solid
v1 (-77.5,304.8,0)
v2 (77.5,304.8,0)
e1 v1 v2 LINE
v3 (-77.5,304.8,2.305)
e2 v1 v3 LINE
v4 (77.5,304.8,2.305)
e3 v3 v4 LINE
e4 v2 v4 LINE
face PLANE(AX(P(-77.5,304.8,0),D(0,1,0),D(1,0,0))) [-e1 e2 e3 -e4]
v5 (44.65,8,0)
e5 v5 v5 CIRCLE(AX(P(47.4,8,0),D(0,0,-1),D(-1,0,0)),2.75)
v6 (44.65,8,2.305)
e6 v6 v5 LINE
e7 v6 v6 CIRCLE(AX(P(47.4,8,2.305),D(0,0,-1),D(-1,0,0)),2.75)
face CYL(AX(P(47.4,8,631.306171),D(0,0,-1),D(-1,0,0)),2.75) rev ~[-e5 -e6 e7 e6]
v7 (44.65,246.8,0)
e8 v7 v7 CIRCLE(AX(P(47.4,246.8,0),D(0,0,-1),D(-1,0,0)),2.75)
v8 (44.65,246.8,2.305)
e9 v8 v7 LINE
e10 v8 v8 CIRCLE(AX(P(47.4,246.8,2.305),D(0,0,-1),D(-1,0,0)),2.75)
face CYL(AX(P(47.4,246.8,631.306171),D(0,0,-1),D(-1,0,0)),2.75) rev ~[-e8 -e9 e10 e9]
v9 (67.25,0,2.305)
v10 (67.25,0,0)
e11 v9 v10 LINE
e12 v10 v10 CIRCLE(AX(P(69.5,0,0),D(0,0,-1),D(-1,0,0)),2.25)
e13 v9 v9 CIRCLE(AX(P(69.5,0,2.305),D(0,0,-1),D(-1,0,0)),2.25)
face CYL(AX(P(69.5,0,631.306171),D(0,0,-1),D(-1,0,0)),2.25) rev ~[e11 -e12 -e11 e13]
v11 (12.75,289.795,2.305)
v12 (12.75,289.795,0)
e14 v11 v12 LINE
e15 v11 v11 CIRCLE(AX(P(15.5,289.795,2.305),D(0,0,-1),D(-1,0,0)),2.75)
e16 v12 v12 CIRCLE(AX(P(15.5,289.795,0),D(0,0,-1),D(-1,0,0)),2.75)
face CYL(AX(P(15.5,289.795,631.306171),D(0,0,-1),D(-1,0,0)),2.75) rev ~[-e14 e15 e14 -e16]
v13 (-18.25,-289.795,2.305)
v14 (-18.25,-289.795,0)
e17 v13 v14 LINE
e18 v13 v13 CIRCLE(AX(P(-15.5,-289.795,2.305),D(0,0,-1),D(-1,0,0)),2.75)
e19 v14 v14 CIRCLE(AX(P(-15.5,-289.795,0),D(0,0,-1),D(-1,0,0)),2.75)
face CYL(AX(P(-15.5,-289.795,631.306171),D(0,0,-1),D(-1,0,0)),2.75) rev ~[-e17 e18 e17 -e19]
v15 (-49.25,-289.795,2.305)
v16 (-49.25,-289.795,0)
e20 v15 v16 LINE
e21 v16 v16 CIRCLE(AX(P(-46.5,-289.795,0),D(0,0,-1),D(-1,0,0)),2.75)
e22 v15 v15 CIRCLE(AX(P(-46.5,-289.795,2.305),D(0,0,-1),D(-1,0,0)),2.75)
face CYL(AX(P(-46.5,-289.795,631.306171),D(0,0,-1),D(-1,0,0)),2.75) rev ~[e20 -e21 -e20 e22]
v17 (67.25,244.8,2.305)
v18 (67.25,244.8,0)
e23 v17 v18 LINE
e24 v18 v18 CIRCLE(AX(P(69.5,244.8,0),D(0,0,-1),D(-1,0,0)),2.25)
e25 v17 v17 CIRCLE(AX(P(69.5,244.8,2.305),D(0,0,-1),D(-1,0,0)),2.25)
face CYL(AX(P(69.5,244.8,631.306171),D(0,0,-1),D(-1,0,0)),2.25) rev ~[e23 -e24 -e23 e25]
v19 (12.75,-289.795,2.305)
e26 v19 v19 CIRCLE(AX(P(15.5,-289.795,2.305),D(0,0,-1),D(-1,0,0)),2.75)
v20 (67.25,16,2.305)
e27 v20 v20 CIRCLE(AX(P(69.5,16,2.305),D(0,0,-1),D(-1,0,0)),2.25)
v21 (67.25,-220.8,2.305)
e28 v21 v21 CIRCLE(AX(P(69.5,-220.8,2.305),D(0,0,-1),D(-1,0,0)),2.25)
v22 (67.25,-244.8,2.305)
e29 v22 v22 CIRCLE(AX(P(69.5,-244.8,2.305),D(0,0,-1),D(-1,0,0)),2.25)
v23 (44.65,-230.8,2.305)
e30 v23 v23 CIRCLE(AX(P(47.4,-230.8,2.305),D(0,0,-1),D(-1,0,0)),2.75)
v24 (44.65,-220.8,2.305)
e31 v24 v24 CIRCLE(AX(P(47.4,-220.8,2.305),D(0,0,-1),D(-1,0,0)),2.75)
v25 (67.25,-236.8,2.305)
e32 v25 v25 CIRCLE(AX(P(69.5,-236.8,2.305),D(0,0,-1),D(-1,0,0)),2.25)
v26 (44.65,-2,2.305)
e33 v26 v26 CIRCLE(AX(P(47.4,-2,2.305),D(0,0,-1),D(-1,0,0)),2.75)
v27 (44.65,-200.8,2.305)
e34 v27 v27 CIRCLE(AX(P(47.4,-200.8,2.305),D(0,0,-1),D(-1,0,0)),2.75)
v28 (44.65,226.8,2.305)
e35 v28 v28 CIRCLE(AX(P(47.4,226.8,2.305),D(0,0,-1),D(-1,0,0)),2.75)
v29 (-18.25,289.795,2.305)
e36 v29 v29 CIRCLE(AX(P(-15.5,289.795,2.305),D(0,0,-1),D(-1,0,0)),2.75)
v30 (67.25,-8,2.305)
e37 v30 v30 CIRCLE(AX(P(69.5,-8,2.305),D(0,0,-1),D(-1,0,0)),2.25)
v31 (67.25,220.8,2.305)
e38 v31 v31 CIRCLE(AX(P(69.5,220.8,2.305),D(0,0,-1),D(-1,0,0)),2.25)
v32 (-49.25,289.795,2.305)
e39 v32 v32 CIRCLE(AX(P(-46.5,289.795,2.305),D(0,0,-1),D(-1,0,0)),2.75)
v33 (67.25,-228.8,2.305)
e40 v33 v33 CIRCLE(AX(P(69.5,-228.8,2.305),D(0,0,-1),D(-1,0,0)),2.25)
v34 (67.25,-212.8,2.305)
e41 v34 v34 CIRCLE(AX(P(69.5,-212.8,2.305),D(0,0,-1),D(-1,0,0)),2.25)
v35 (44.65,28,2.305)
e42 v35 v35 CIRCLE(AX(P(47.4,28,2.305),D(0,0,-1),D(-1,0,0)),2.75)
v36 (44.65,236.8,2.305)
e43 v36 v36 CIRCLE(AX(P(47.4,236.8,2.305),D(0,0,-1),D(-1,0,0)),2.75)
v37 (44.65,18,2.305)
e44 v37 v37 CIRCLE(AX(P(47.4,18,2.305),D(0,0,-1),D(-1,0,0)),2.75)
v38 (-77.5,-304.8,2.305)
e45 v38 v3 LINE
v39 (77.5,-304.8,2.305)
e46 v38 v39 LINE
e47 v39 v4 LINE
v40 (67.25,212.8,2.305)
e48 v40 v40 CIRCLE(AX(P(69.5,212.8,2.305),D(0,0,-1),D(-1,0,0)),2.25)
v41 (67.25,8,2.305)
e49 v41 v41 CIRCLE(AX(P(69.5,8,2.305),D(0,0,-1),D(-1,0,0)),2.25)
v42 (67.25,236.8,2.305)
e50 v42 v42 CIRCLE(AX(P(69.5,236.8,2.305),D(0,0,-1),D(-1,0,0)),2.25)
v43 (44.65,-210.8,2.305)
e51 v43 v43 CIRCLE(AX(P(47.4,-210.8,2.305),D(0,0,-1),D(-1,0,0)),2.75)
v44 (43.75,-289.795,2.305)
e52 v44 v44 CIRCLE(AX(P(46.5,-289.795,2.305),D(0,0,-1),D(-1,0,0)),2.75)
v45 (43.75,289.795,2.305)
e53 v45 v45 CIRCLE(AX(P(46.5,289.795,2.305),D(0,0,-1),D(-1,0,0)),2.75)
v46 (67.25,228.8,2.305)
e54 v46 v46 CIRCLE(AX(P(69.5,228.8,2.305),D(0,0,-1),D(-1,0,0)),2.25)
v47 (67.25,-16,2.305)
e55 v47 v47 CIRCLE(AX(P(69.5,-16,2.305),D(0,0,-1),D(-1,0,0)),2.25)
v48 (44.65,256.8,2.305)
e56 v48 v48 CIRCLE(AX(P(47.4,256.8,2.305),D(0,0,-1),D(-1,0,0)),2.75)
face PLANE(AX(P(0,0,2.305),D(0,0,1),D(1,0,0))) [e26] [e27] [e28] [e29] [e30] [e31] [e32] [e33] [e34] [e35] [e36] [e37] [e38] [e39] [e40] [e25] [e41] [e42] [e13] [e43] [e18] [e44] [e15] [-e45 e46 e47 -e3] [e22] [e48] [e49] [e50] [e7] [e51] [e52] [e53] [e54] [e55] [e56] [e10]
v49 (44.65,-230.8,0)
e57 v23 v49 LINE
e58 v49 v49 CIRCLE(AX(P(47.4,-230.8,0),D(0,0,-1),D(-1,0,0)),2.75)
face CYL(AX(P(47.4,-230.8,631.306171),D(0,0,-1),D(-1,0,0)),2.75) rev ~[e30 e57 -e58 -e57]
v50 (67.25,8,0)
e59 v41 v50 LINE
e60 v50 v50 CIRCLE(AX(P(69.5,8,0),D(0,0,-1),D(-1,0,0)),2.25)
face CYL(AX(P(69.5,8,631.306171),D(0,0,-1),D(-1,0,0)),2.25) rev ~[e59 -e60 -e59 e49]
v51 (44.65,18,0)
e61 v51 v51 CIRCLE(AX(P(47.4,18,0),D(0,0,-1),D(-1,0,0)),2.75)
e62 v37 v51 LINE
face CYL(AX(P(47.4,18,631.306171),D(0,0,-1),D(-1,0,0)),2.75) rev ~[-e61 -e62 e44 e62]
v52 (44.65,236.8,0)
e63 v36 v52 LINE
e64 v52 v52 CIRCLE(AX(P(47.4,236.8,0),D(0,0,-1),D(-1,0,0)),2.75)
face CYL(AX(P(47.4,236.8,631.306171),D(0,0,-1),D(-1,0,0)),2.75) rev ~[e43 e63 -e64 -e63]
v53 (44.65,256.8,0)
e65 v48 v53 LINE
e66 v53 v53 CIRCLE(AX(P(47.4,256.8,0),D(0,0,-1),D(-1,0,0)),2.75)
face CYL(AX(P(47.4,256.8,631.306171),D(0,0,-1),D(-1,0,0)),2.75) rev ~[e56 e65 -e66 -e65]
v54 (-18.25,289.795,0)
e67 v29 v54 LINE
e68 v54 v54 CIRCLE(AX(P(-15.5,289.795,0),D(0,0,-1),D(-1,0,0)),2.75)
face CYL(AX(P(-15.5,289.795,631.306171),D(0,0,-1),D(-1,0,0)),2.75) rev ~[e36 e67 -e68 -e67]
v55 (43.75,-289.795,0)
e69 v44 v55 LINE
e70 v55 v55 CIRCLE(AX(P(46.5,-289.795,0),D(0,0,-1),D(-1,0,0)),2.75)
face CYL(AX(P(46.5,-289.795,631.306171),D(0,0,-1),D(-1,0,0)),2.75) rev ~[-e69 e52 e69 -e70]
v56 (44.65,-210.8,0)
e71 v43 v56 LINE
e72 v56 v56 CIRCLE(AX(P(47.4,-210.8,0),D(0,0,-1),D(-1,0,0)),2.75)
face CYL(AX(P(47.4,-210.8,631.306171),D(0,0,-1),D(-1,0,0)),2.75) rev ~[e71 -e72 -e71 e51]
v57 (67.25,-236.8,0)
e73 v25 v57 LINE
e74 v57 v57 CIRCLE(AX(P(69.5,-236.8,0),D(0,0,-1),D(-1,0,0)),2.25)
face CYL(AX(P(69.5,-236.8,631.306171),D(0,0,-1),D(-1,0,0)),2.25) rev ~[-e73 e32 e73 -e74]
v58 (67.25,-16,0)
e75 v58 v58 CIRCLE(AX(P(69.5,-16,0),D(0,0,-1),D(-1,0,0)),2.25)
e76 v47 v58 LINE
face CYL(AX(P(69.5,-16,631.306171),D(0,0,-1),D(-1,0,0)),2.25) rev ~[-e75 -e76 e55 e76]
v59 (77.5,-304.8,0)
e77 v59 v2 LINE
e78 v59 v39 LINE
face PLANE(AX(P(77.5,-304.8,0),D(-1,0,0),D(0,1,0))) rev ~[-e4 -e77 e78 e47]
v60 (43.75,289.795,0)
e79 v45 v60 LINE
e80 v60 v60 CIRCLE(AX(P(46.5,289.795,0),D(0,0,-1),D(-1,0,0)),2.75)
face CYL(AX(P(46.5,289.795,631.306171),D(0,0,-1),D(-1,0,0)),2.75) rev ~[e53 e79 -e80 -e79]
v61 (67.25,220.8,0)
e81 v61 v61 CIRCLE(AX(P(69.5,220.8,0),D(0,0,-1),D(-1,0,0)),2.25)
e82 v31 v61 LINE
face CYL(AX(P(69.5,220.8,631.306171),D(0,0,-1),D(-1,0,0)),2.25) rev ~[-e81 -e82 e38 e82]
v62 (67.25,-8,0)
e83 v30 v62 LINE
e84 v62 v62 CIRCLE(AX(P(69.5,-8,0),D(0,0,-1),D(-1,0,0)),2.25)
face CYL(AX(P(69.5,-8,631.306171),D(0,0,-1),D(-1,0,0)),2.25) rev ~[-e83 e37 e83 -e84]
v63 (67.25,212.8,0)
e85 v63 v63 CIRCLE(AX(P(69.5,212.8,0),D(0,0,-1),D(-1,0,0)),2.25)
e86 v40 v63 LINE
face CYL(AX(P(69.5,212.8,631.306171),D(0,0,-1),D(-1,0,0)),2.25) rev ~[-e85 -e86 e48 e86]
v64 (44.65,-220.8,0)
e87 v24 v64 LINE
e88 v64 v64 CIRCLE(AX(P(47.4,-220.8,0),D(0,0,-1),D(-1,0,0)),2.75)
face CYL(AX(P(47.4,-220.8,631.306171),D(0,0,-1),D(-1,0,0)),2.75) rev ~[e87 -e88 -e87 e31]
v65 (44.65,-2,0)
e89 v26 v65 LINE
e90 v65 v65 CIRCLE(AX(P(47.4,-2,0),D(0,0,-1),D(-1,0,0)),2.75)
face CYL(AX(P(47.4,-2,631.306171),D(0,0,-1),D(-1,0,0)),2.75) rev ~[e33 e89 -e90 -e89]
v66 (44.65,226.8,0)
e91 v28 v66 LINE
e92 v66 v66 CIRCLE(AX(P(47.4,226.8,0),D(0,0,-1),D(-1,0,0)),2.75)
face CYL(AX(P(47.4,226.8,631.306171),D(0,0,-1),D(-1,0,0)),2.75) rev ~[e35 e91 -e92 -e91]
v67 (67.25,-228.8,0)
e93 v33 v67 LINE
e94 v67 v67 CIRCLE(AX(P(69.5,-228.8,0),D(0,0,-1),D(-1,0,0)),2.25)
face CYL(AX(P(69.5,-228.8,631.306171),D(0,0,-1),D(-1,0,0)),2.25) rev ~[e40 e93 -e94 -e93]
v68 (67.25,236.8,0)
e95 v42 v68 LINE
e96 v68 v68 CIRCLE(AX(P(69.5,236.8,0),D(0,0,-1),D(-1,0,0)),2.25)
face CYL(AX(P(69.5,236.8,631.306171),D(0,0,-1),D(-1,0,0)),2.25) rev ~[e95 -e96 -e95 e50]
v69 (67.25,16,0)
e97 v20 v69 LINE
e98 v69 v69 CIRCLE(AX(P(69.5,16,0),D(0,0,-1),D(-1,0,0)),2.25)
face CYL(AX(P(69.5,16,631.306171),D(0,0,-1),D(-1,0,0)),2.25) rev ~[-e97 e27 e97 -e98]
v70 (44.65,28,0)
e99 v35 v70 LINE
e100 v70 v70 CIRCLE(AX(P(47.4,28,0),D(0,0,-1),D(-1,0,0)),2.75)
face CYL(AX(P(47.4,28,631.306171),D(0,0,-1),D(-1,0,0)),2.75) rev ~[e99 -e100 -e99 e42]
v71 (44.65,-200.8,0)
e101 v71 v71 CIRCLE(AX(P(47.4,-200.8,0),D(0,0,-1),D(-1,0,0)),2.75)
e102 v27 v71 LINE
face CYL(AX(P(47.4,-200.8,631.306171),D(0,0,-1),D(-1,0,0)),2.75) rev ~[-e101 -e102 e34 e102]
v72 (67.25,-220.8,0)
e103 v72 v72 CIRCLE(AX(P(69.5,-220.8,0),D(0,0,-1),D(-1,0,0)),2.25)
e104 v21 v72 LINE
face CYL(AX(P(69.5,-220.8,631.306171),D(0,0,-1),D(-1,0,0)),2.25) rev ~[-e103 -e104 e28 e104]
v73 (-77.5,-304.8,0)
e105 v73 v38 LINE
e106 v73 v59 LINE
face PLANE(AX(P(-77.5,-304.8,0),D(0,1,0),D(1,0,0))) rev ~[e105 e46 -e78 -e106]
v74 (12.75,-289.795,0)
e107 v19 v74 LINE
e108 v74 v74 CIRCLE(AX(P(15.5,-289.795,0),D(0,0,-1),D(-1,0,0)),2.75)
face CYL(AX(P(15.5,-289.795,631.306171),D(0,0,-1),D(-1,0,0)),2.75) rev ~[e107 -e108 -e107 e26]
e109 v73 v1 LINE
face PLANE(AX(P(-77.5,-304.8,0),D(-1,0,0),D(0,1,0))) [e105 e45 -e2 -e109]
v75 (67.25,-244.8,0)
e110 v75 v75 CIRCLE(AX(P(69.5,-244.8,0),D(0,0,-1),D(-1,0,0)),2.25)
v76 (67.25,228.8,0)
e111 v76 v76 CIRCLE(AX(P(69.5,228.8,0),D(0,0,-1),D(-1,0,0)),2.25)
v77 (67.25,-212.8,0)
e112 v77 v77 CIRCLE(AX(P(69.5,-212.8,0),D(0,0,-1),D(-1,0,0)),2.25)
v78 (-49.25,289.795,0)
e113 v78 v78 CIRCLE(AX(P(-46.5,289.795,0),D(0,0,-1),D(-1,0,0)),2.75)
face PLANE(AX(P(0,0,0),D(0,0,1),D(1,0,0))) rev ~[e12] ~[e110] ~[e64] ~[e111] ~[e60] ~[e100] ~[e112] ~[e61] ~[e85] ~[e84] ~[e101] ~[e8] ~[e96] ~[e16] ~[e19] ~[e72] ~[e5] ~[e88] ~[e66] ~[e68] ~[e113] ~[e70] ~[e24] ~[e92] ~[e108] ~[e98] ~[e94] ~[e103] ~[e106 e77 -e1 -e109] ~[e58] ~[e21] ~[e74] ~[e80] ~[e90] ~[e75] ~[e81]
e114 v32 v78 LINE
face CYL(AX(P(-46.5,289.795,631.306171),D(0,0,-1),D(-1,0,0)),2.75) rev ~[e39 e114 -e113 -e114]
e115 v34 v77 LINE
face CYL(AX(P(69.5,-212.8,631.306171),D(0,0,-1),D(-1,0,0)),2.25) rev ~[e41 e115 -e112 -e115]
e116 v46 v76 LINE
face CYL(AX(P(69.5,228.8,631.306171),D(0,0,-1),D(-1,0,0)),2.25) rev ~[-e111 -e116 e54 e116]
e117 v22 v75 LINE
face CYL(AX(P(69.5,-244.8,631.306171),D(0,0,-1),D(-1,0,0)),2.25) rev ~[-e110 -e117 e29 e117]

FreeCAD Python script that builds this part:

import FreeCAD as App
import Part
import Sketcher


def add_polygon(sketch, points):
    """Adds a closed chain of lines whose ends are joined by coincident constraints."""
    first, n = sketch.GeometryCount, len(points)
    for a, b in zip(points, points[1:] + points[:1]):
        sketch.addGeometry(Part.LineSegment(App.Vector(*a, 0), App.Vector(*b, 0)), False)
    for i in range(n):
        sketch.addConstraint(Sketcher.Constraint("Coincident", first + i, 2, first + (i + 1) % n, 1))

doc = App.newDocument("Part")
body = doc.addObject("PartDesign::Body", "Body")

sketch1 = body.newObject("Sketcher::SketchObject", "Sketch")
sketch1.AttachmentSupport = (doc.getObject("XY_Plane"), [""])
sketch1.MapMode = "FlatFace"
add_polygon(sketch1, [(-77.5, 304.8), (-77.5, -304.8), (77.5, -304.8), (77.5, 304.8)])
sketch1.addConstraint([
    Sketcher.Constraint("Vertical", 0),
    Sketcher.Constraint("Horizontal", 1),
    Sketcher.Constraint("Vertical", 2),
    Sketcher.Constraint("Horizontal", 3),
    Sketcher.Constraint("Symmetric", 0, 2, 2, 2, -1, 1),
    Sketcher.Constraint("DistanceX", 1, 1, 1, 2, 155.0),
    Sketcher.Constraint("DistanceY", 0, 2, 0, 1, 609.6),
])
pad1 = body.newObject("PartDesign::Pad", "Pad")
pad1.Profile = sketch1
pad1.Length = 2.305

sketch2 = body.newObject("Sketcher::SketchObject", "Sketch001")
sketch2.AttachmentSupport = (doc.getObject("XY_Plane"), [""])
sketch2.MapMode = "FlatFace"
sketch2.AttachmentOffset = App.Placement(App.Vector(0, 0, 2.305), App.Rotation())
sketch2.addGeometry([
    Part.Circle(App.Vector(69.5, 228.8, 0), App.Vector(0, 0, 1), 2.25),
    Part.Circle(App.Vector(69.5, 244.8, 0), App.Vector(0, 0, 1), 2.25),
    Part.Circle(App.Vector(69.5, 236.8, 0), App.Vector(0, 0, 1), 2.25),
    Part.Circle(App.Vector(69.5, 220.8, 0), App.Vector(0, 0, 1), 2.25),
    Part.Circle(App.Vector(69.5, 212.8, 0), App.Vector(0, 0, 1), 2.25),
    Part.Circle(App.Vector(69.5, 16, 0), App.Vector(0, 0, 1), 2.25),
    Part.Circle(App.Vector(69.5, 8, 0), App.Vector(0, 0, 1), 2.25),
    Part.Circle(App.Vector(69.5, 0, 0), App.Vector(0, 0, 1), 2.25),
    Part.Circle(App.Vector(69.5, -8, 0), App.Vector(0, 0, 1), 2.25),
    Part.Circle(App.Vector(69.5, -16, 0), App.Vector(0, 0, 1), 2.25),
    Part.Circle(App.Vector(69.5, -212.8, 0), App.Vector(0, 0, 1), 2.25),
    Part.Circle(App.Vector(69.5, -220.8, 0), App.Vector(0, 0, 1), 2.25),
    Part.Circle(App.Vector(69.5, -228.8, 0), App.Vector(0, 0, 1), 2.25),
    Part.Circle(App.Vector(69.5, -236.8, 0), App.Vector(0, 0, 1), 2.25),
    Part.Circle(App.Vector(69.5, -244.8, 0), App.Vector(0, 0, 1), 2.25),
], False)
sketch2.addConstraint([
    Sketcher.Constraint("Equal", 0, 1),
    Sketcher.Constraint("Equal", 1, 2),
    Sketcher.Constraint("Equal", 2, 3),
    Sketcher.Constraint("Equal", 3, 4),
    Sketcher.Constraint("Equal", 4, 5),
    Sketcher.Constraint("Equal", 5, 6),
    Sketcher.Constraint("Equal", 6, 7),
    Sketcher.Constraint("Equal", 7, 8),
    Sketcher.Constraint("Equal", 8, 9),
    Sketcher.Constraint("Equal", 9, 10),
    Sketcher.Constraint("Equal", 10, 11),
    Sketcher.Constraint("Equal", 11, 12),
    Sketcher.Constraint("Equal", 12, 13),
    Sketcher.Constraint("Equal", 13, 14),
    Sketcher.Constraint("Symmetric", 6, 3, 8, 3, -1),
    Sketcher.Constraint("Symmetric", 5, 3, 9, 3, -1),
    Sketcher.Constraint("Symmetric", 4, 3, 10, 3, -1),
    Sketcher.Constraint("Symmetric", 3, 3, 11, 3, -1),
    Sketcher.Constraint("Symmetric", 0, 3, 12, 3, -1),
    Sketcher.Constraint("Symmetric", 2, 3, 13, 3, -1),
    Sketcher.Constraint("Symmetric", 1, 3, 14, 3, -1),
    Sketcher.Constraint("PointOnObject", 7, 3, -1),
    Sketcher.Constraint("Vertical", 0, 3, 1, 3),
    Sketcher.Constraint("Vertical", 1, 3, 2, 3),
    Sketcher.Constraint("Vertical", 2, 3, 3, 3),
    Sketcher.Constraint("Vertical", 3, 3, 4, 3),
    Sketcher.Constraint("Vertical", 4, 3, 5, 3),
    Sketcher.Constraint("Vertical", 5, 3, 6, 3),
    Sketcher.Constraint("Vertical", 6, 3, 7, 3),
    Sketcher.Constraint("Diameter", 0, 4.5),
    Sketcher.Constraint("DistanceY", -1, 1, 5, 3, 16.0),
    Sketcher.Constraint("DistanceY", -1, 1, 6, 3, 8.0),
    Sketcher.Constraint("DistanceY", 0, 3, 1, 3, 16.0),
    Sketcher.Constraint("DistanceY", 0, 3, 2, 3, 8.0),
    Sketcher.Constraint("DistanceY", 3, 3, 0, 3, 8.0),
    Sketcher.Constraint("DistanceY", 4, 3, 3, 3, 8.0),
    Sketcher.Constraint("DistanceX", -1, 1, 0, 3, 69.5),
    Sketcher.Constraint("DistanceY", -1, 1, 0, 3, 228.8),
])
doc.recompute()
hole = body.newObject("PartDesign::Hole", "Hole")
hole.Profile = sketch2
hole.ThreadType = "None"
hole.Diameter = 4.5
hole.DepthType = "ThroughAll"

sketch3 = body.newObject("Sketcher::SketchObject", "Sketch002")
sketch3.AttachmentSupport = (doc.getObject("XY_Plane"), [""])
sketch3.MapMode = "FlatFace"
sketch3.AttachmentOffset = App.Placement(App.Vector(0, 0, 2.305), App.Rotation())
sketch3.addGeometry([
    Part.Circle(App.Vector(-46.5, -289.795, 0), App.Vector(0, 0, 1), 2.75),
    Part.Circle(App.Vector(-15.5, -289.795, 0), App.Vector(0, 0, 1), 2.75),
    Part.Circle(App.Vector(15.5, -289.795, 0), App.Vector(0, 0, 1), 2.75),
    Part.Circle(App.Vector(46.5, -289.795, 0), App.Vector(0, 0, 1), 2.75),
    Part.Circle(App.Vector(-46.5, 289.795, 0), App.Vector(0, 0, 1), 2.75),
    Part.Circle(App.Vector(-15.5, 289.795, 0), App.Vector(0, 0, 1), 2.75),
    Part.Circle(App.Vector(15.5, 289.795, 0), App.Vector(0, 0, 1), 2.75),
    Part.Circle(App.Vector(46.5, 289.795, 0), App.Vector(0, 0, 1), 2.75),
    Part.Circle(App.Vector(47.4, -230.8, 0), App.Vector(0, 0, 1), 2.75),
    Part.Circle(App.Vector(47.4, -220.8, 0), App.Vector(0, 0, 1), 2.75),
    Part.Circle(App.Vector(47.4, -210.8, 0), App.Vector(0, 0, 1), 2.75),
    Part.Circle(App.Vector(47.4, -200.8, 0), App.Vector(0, 0, 1), 2.75),
    Part.Circle(App.Vector(47.4, -2, 0), App.Vector(0, 0, 1), 2.75),
    Part.Circle(App.Vector(47.4, 8, 0), App.Vector(0, 0, 1), 2.75),
    Part.Circle(App.Vector(47.4, 18, 0), App.Vector(0, 0, 1), 2.75),
    Part.Circle(App.Vector(47.4, 28, 0), App.Vector(0, 0, 1), 2.75),
    Part.Circle(App.Vector(47.4, 226.8, 0), App.Vector(0, 0, 1), 2.75),
    Part.Circle(App.Vector(47.4, 236.8, 0), App.Vector(0, 0, 1), 2.75),
    Part.Circle(App.Vector(47.4, 246.8, 0), App.Vector(0, 0, 1), 2.75),
    Part.Circle(App.Vector(47.4, 256.8, 0), App.Vector(0, 0, 1), 2.75),
], False)
sketch3.addConstraint([
    Sketcher.Constraint("Equal", 0, 1),
    Sketcher.Constraint("Equal", 1, 2),
    Sketcher.Constraint("Equal", 2, 3),
    Sketcher.Constraint("Equal", 3, 4),
    Sketcher.Constraint("Equal", 4, 5),
    Sketcher.Constraint("Equal", 5, 6),
    Sketcher.Constraint("Equal", 6, 7),
    Sketcher.Constraint("Equal", 7, 8),
    Sketcher.Constraint("Equal", 8, 9),
    Sketcher.Constraint("Equal", 9, 10),
    Sketcher.Constraint("Equal", 10, 11),
    Sketcher.Constraint("Equal", 11, 12),
    Sketcher.Constraint("Equal", 12, 13),
    Sketcher.Constraint("Equal", 13, 14),
    Sketcher.Constraint("Equal", 14, 15),
    Sketcher.Constraint("Equal", 15, 16),
    Sketcher.Constraint("Equal", 16, 17),
    Sketcher.Constraint("Equal", 17, 18),
    Sketcher.Constraint("Equal", 18, 19),
    Sketcher.Constraint("Symmetric", 3, 3, 4, 3, -1, 1),
    Sketcher.Constraint("Symmetric", 2, 3, 5, 3, -1, 1),
    Sketcher.Constraint("Symmetric", 1, 3, 6, 3, -1, 1),
    Sketcher.Constraint("Symmetric", 0, 3, 7, 3, -1, 1),
    Sketcher.Constraint("Symmetric", 1, 3, 2, 3, -2),
    Sketcher.Constraint("Symmetric", 0, 3, 3, 3, -2),
    Sketcher.Constraint("Horizontal", 0, 3, 1, 3),
    Sketcher.Constraint("Vertical", 8, 3, 9, 3),
    Sketcher.Constraint("Vertical", 9, 3, 10, 3),
    Sketcher.Constraint("Vertical", 10, 3, 11, 3),
    Sketcher.Constraint("Vertical", 11, 3, 12, 3),
    Sketcher.Constraint("Vertical", 12, 3, 13, 3),
    Sketcher.Constraint("Vertical", 13, 3, 14, 3),
    Sketcher.Constraint("Vertical", 14, 3, 15, 3),
    Sketcher.Constraint("Vertical", 15, 3, 16, 3),
    Sketcher.Constraint("Vertical", 16, 3, 17, 3),
    Sketcher.Constraint("Vertical", 17, 3, 18, 3),
    Sketcher.Constraint("Vertical", 18, 3, 19, 3),
    Sketcher.Constraint("Diameter", 0, 5.5),
    Sketcher.Constraint("DistanceY", 12, 3, -1, 1, 2.0),
    Sketcher.Constraint("DistanceY", -1, 1, 13, 3, 8.0),
    Sketcher.Constraint("DistanceY", -1, 1, 14, 3, 18.0),
    Sketcher.Constraint("DistanceY", -1, 1, 15, 3, 28.0),
    Sketcher.Constraint("DistanceX", 0, 3, 1, 3, 31.0),
    Sketcher.Constraint("DistanceX", 1, 3, 2, 3, 31.0),
    Sketcher.Constraint("DistanceY", 8, 3, 9, 3, 10.0),
    Sketcher.Constraint("DistanceY", 9, 3, 10, 3, 10.0),
    Sketcher.Constraint("DistanceY", 10, 3, 11, 3, 10.0),
    Sketcher.Constraint("DistanceY", 16, 3, 17, 3, 10.0),
    Sketcher.Constraint("DistanceY", 17, 3, 18, 3, 10.0),
    Sketcher.Constraint("DistanceY", 18, 3, 19, 3, 10.0),
    Sketcher.Constraint("DistanceX", -1, 1, 8, 3, 47.4),
    Sketcher.Constraint("DistanceY", 8, 3, -1, 1, 230.8),
    Sketcher.Constraint("DistanceY", -1, 1, 16, 3, 226.8),
    Sketcher.Constraint("DistanceY", 0, 3, 4, 3, 579.59),
])
doc.recompute()
hole2 = body.newObject("PartDesign::Hole", "Hole001")
hole2.Profile = sketch3
hole2.ThreadType = "None"
hole2.Diameter = 5.5
hole2.DepthType = "ThroughAll"

doc.recompute()
